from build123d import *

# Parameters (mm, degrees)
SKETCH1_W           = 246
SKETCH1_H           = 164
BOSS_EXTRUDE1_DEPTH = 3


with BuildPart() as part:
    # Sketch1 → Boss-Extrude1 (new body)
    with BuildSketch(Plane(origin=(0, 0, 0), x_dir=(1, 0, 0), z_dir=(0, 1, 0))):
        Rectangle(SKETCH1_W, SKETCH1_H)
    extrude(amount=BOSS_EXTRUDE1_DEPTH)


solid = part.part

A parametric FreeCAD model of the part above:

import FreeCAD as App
import Part
import Sketcher

V = App.Vector


def add_polygon(sketch, points):
    """Adds a closed chain of lines whose ends are joined by coincident constraints."""
    first, n = sketch.GeometryCount, len(points)
    for a, b in zip(points, points[1:] + points[:1]):
        sketch.addGeometry(Part.LineSegment(App.Vector(*a, 0), App.Vector(*b, 0)), False)
    for i in range(n):
        sketch.addConstraint(Sketcher.Constraint("Coincident", first + i, 2, first + (i + 1) % n, 1))

doc = App.newDocument("Part")
body = doc.addObject("PartDesign::Body", "Body")

# Sketch on XZ plane
sketch1 = body.newObject("Sketcher::SketchObject", "Sketch")
sketch1.AttachmentSupport = (doc.getObject("XZ_Plane"), [""])
sketch1.MapMode = "FlatFace"
add_polygon(sketch1, [(-123, -82), (-123, 82), (123, 82), (123, -82)])  # lines 0-3
sketch1.addConstraint([
    Sketcher.Constraint("Vertical", 0),
    Sketcher.Constraint("Horizontal", 1),
    Sketcher.Constraint("Vertical", 2),
    Sketcher.Constraint("Horizontal", 3),
    Sketcher.Constraint("Symmetric", 0, 2, 2, 2, -1, 1),
    Sketcher.Constraint("DistanceX", 1, 1, 1, 2, 246.0),
    Sketcher.Constraint("DistanceY", 0, 1, 0, 2, 164.0),
])
pad1 = body.newObject("PartDesign::Pad", "Pad")
pad1.Profile = sketch1
pad1.Length = 3
pad1.Reversed = True

doc.recompute()
